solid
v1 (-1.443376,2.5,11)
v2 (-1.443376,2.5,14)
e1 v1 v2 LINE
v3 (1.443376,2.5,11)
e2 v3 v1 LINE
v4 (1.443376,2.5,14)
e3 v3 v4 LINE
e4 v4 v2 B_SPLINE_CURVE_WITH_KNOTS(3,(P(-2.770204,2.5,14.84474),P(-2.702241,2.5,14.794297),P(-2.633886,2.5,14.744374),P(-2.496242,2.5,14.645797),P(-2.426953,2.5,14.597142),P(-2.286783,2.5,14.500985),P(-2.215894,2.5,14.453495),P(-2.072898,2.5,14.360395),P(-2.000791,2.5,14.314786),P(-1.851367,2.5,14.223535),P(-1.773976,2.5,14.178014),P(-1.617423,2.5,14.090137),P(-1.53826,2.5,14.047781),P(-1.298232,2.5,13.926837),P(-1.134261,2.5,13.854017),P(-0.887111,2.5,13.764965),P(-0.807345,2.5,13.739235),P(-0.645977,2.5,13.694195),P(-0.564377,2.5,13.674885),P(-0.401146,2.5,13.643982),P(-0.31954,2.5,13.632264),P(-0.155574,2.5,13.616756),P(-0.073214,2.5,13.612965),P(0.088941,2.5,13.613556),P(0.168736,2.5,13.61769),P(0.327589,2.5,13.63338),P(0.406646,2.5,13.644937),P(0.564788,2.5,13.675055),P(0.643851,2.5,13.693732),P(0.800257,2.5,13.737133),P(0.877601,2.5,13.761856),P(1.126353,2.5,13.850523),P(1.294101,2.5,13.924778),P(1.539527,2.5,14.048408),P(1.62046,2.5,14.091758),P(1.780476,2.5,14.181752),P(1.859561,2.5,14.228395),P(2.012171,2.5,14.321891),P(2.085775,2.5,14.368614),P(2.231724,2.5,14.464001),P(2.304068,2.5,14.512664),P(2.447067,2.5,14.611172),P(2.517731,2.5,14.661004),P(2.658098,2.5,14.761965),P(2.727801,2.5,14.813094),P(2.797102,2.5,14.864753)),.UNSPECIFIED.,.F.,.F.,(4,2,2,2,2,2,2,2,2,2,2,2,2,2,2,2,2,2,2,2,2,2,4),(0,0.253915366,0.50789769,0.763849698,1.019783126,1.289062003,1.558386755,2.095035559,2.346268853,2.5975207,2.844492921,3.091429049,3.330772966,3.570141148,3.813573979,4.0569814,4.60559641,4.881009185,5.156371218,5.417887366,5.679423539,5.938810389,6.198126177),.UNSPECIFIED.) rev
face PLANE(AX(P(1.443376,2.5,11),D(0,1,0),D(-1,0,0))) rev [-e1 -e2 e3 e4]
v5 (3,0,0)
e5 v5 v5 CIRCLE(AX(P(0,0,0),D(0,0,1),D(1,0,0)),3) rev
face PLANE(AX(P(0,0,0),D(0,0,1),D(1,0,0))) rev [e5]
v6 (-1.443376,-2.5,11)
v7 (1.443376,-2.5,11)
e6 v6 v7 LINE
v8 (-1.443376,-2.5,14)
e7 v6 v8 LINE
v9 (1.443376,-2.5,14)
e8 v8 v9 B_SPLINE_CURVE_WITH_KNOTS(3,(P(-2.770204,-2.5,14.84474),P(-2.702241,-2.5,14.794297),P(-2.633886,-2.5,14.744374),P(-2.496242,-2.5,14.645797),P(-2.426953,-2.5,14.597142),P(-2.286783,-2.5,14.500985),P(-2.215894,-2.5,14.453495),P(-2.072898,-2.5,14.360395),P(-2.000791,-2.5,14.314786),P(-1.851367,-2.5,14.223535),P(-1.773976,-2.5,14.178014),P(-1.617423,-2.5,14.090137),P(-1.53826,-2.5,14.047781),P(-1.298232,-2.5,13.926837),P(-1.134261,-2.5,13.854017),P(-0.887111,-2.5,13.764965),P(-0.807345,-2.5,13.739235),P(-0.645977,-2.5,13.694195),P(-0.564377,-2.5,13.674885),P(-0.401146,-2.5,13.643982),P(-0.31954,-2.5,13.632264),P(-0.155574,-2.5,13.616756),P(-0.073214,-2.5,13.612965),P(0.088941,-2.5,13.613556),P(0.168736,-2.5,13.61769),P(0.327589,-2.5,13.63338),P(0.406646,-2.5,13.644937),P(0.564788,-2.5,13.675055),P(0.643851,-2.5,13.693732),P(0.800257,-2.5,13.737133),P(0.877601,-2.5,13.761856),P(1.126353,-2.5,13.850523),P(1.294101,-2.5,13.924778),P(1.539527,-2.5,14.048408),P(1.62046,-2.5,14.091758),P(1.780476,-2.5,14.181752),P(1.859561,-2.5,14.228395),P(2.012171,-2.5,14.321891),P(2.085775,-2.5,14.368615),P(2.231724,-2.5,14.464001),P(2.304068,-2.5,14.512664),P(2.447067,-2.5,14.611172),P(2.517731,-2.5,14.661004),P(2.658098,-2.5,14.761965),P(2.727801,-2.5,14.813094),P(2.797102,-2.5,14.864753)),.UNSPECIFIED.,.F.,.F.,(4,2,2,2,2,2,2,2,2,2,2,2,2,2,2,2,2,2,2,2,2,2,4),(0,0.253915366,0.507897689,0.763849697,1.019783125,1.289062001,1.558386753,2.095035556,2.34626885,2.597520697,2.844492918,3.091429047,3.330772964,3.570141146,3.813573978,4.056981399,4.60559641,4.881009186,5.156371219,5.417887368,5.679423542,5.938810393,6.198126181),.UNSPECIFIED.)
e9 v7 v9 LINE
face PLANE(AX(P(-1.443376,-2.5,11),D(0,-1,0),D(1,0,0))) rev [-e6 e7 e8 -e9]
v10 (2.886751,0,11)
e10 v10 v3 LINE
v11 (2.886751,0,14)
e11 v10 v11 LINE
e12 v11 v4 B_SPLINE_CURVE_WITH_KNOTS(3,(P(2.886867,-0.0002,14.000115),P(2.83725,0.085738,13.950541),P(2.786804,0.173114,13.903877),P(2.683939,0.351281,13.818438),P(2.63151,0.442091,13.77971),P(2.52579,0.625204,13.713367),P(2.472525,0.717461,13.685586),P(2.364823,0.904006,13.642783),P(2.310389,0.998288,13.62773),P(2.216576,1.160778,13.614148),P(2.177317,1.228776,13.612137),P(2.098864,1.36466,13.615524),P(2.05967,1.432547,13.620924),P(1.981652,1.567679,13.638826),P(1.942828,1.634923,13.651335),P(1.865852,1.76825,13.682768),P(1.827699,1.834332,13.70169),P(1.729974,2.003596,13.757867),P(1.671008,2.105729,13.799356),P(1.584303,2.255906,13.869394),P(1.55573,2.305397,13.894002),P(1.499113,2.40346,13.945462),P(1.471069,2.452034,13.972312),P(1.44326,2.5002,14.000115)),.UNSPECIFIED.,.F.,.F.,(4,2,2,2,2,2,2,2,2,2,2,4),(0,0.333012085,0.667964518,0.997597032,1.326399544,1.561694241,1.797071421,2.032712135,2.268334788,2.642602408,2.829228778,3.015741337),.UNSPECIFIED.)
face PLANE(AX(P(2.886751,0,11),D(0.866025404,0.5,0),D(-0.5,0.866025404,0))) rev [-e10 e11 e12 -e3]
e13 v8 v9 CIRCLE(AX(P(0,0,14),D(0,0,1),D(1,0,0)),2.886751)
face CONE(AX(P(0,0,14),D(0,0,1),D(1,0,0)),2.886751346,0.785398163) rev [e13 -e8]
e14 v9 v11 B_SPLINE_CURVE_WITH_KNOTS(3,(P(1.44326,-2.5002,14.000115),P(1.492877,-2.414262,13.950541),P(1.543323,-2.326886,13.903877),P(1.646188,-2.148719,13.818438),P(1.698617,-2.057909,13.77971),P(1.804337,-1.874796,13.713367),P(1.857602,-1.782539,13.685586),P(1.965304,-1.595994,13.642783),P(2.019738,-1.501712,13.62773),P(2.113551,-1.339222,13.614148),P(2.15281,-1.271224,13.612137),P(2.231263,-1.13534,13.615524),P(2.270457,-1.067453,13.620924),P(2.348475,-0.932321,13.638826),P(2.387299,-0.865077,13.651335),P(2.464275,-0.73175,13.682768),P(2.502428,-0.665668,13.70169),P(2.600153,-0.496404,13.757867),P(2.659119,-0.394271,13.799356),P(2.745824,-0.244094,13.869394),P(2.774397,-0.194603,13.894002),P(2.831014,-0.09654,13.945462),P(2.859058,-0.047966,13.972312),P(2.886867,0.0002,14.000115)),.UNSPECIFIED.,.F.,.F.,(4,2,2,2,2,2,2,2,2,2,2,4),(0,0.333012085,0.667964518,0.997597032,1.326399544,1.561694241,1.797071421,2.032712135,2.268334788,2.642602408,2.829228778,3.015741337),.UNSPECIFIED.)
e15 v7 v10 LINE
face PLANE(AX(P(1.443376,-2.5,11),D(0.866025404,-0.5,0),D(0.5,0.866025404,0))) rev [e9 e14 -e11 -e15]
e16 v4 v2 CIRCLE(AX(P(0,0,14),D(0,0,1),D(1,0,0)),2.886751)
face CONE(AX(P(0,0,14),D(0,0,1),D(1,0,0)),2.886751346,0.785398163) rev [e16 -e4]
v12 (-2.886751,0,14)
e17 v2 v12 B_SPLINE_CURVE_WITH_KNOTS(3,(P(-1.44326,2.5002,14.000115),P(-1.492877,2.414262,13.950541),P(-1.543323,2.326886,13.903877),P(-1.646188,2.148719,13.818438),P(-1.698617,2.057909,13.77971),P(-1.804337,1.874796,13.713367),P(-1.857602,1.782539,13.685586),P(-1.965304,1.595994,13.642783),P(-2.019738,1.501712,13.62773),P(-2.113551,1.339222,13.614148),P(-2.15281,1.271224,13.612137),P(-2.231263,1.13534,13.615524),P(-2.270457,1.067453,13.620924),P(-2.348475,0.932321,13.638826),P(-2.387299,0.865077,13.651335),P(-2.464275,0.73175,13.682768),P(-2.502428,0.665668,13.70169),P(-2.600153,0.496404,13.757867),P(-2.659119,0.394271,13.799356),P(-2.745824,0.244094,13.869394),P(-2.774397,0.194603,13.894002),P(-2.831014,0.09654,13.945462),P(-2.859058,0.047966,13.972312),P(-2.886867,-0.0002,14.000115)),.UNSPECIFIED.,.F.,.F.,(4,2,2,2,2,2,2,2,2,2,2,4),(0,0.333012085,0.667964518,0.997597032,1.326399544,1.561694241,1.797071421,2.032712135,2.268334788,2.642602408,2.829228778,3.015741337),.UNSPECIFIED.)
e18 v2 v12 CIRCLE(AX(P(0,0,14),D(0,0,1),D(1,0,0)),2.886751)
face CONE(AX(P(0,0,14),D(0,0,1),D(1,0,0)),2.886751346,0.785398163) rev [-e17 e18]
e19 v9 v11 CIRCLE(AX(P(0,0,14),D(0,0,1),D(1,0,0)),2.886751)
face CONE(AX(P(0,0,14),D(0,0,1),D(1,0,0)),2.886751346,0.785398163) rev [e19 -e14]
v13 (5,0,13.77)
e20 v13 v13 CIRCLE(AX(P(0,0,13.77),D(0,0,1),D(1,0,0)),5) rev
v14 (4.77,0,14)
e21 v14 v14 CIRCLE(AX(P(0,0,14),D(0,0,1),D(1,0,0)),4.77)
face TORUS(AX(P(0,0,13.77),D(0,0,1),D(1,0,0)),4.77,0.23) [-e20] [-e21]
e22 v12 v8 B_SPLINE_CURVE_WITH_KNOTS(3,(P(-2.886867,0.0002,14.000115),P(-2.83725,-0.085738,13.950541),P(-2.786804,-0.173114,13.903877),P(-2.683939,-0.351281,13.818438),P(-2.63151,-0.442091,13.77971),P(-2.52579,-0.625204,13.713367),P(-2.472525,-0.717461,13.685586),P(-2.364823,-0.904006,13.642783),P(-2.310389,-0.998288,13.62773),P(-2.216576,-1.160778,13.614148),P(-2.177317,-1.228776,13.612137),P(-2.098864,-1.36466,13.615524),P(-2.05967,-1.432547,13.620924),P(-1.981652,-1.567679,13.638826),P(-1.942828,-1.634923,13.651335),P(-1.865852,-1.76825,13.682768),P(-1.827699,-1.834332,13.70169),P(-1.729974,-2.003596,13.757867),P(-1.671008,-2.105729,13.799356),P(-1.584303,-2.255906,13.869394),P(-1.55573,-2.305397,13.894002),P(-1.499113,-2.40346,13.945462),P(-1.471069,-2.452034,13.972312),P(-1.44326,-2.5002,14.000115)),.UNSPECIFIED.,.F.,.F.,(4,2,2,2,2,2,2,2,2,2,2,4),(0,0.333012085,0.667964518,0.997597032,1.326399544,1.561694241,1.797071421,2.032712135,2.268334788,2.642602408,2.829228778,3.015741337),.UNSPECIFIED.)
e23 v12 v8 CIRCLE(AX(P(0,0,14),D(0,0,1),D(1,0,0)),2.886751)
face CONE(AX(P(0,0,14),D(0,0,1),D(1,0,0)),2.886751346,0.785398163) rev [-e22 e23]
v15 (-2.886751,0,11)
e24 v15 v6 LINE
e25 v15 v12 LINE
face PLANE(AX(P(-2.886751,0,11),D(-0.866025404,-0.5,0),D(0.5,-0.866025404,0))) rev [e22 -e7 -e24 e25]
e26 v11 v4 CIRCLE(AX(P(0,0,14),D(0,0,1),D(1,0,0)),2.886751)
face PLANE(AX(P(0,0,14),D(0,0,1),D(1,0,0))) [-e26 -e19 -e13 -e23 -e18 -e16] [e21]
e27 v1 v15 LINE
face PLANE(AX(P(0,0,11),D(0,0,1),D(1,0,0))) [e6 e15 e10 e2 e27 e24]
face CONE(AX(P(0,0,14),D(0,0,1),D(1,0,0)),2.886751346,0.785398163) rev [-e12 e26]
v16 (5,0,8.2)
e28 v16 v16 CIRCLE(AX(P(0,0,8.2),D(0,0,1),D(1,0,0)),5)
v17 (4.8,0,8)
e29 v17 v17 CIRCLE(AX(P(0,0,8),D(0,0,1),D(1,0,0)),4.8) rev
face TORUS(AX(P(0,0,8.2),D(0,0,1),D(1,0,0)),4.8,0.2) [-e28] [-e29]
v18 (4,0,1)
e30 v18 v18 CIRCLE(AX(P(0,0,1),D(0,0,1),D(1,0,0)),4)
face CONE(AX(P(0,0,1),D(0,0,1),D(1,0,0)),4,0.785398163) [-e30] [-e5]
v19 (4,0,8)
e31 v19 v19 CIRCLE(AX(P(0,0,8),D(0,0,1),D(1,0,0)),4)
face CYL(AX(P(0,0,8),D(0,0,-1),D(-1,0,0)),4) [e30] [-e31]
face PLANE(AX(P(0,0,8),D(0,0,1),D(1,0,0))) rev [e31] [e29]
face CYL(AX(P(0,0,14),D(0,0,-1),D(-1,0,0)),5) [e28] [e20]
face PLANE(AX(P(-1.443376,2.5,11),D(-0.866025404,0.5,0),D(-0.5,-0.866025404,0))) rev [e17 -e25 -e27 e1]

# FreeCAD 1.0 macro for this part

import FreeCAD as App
import Part
import Sketcher
from FreeCAD import Vector
Q = App.Units.Quantity


def edges_at(feature, points):
    """Names of the edges that pass closest to the given points."""
    edges = feature.Shape.Edges
    near = lambda p: min(range(len(edges)), key=lambda i: edges[i].distToShape(Part.Vertex(*p))[0])
    return sorted({f"Edge{near(p) + 1}" for p in points})

doc = App.newDocument("Part")
body = doc.addObject("PartDesign::Body", "Body")

# Sketch on XY plane
sketch1 = body.newObject("Sketcher::SketchObject", "Sketch")
sketch1.AttachmentSupport = (doc.getObject("XY_Plane"), [""])
sketch1.MapMode = "FlatFace"
sketch1.addGeometry(Part.Circle(Vector(0, 0, 0), Vector(0, 0, 1), 4), False)
sketch1.addConstraint(Sketcher.Constraint("Coincident", 0, 3, -1, 1))
sketch1.addConstraint(Sketcher.Constraint("Diameter", 0, 8.0))
pad1 = body.newObject("PartDesign::Pad", "Pad")
pad1.Profile = sketch1
pad1.Length = 8
doc.recompute()

chamfer = body.newObject("PartDesign::Chamfer", "Chamfer")
chamfer.Base = (pad1, edges_at(pad1, [(-4, 0, 0)]))
chamfer.Size = 1

# Sketch on XY plane
sketch2 = body.newObject("Sketcher::SketchObject", "Sketch001")
sketch2.AttachmentSupport = (doc.getObject("XY_Plane"), [""])
sketch2.MapMode = "FlatFace"
sketch2.AttachmentOffset = App.Placement(Vector(0, 0, 8), App.Rotation())
sketch2.addGeometry(Part.Circle(Vector(0, 0, 0), Vector(0, 0, 1), 5), False)
sketch2.addConstraint(Sketcher.Constraint("Coincident", 0, 3, -1, 1))
sketch2.addConstraint(Sketcher.Constraint("Diameter", 0, 10.0))
pad2 = body.newObject("PartDesign::Pad", "Pad001")
pad2.Profile = sketch2
pad2.Length = 6

# Sketch on XY plane
sketch3 = body.newObject("Sketcher::SketchObject", "Sketch002")
sketch3.AttachmentSupport = (doc.getObject("XY_Plane"), [""])
sketch3.MapMode = "FlatFace"
sketch3.AttachmentOffset = App.Placement(Vector(0, 0, 14), App.Rotation())
sketch3.addGeometry(Part.LineSegment(Vector(1.4, 2.5, 0), Vector(-1.4, 2.5, 0)), False)
sketch3.addGeometry(Part.LineSegment(Vector(-1.4, 2.5, 0), Vector(-2.9, 0, 0)), False)
sketch3.addGeometry(Part.LineSegment(Vector(-2.9, 0, 0), Vector(-1.4, -2.5, 0)), False)
sketch3.addGeometry(Part.LineSegment(Vector(-1.4, -2.5, 0), Vector(1.4, -2.5, 0)), False)
sketch3.addGeometry(Part.LineSegment(Vector(1.4, -2.5, 0), Vector(2.9, 0, 0)), False)
sketch3.addGeometry(Part.LineSegment(Vector(2.9, 0, 0), Vector(1.4, 2.5, 0)), False)
sketch3.addConstraint(Sketcher.Constraint("Coincident", 0, 2, 1, 1))
sketch3.addConstraint(Sketcher.Constraint("Coincident", 1, 2, 2, 1))
sketch3.addConstraint(Sketcher.Constraint("Coincident", 2, 2, 3, 1))
sketch3.addConstraint(Sketcher.Constraint("Coincident", 3, 2, 4, 1))
sketch3.addConstraint(Sketcher.Constraint("Coincident", 4, 2, 5, 1))
sketch3.addConstraint(Sketcher.Constraint("Coincident", 5, 2, 0, 1))
sketch3.addConstraint(Sketcher.Constraint("Horizontal", 0))
sketch3.addConstraint(Sketcher.Constraint("Horizontal", 3))
sketch3.addConstraint(Sketcher.Constraint("Symmetric", 0, 2, 3, 2, -1, 1))
sketch3.addConstraint(Sketcher.Constraint("Symmetric", 1, 2, 4, 2, -1, 1))
sketch3.addConstraint(Sketcher.Constraint("PointOnObject", 1, 2, -1))
sketch3.addConstraint(Sketcher.Constraint("Parallel", 2, 5))
sketch3.addConstraint(Sketcher.Constraint("Vertical", 0, 2, 2, 2))
sketch3.addConstraint(Sketcher.Constraint("Angle", 1, Q("-120 deg")))
sketch3.addConstraint(Sketcher.Constraint("DistanceY", 2, 2, 0, 2, 5.0))
sketch3.addConstraint(Sketcher.Constraint("DistanceX", 0, 2, 0, 1, 2.886751))
pocket1 = body.newObject("PartDesign::Pocket", "Pocket")
pocket1.Profile = sketch3
pocket1.Length = 3

# Sketch on XY plane
sketch4 = body.newObject("Sketcher::SketchObject", "Sketch003")
sketch4.AttachmentSupport = (doc.getObject("XY_Plane"), [""])
sketch4.MapMode = "FlatFace"
sketch4.AttachmentOffset = App.Placement(Vector(0, 0, 14), App.Rotation())
sketch4.addGeometry(Part.Circle(Vector(0, 0, 0), Vector(0, 0, 1), 2.9), False)
sketch4.addConstraint(Sketcher.Constraint("Coincident", 0, 3, -1, 1))
sketch4.addConstraint(Sketcher.Constraint("Diameter", 0, 5.773503))
pocket2 = body.newObject("PartDesign::Pocket", "Pocket001")
pocket2.Profile = sketch4
pocket2.Length = 1
pocket2.TaperAngle = -45
doc.recompute()

fillet = body.newObject("PartDesign::Fillet", "Fillet")
fillet.Base = (pocket2, edges_at(pocket2, [(-5, 0, 14)]))
fillet.Radius = 0.23
doc.recompute()

fillet2 = body.newObject("PartDesign::Fillet", "Fillet001")
fillet2.Base = (fillet, edges_at(fillet, [(-5, 0, 8)]))
fillet2.Radius = 0.2

doc.recompute()
